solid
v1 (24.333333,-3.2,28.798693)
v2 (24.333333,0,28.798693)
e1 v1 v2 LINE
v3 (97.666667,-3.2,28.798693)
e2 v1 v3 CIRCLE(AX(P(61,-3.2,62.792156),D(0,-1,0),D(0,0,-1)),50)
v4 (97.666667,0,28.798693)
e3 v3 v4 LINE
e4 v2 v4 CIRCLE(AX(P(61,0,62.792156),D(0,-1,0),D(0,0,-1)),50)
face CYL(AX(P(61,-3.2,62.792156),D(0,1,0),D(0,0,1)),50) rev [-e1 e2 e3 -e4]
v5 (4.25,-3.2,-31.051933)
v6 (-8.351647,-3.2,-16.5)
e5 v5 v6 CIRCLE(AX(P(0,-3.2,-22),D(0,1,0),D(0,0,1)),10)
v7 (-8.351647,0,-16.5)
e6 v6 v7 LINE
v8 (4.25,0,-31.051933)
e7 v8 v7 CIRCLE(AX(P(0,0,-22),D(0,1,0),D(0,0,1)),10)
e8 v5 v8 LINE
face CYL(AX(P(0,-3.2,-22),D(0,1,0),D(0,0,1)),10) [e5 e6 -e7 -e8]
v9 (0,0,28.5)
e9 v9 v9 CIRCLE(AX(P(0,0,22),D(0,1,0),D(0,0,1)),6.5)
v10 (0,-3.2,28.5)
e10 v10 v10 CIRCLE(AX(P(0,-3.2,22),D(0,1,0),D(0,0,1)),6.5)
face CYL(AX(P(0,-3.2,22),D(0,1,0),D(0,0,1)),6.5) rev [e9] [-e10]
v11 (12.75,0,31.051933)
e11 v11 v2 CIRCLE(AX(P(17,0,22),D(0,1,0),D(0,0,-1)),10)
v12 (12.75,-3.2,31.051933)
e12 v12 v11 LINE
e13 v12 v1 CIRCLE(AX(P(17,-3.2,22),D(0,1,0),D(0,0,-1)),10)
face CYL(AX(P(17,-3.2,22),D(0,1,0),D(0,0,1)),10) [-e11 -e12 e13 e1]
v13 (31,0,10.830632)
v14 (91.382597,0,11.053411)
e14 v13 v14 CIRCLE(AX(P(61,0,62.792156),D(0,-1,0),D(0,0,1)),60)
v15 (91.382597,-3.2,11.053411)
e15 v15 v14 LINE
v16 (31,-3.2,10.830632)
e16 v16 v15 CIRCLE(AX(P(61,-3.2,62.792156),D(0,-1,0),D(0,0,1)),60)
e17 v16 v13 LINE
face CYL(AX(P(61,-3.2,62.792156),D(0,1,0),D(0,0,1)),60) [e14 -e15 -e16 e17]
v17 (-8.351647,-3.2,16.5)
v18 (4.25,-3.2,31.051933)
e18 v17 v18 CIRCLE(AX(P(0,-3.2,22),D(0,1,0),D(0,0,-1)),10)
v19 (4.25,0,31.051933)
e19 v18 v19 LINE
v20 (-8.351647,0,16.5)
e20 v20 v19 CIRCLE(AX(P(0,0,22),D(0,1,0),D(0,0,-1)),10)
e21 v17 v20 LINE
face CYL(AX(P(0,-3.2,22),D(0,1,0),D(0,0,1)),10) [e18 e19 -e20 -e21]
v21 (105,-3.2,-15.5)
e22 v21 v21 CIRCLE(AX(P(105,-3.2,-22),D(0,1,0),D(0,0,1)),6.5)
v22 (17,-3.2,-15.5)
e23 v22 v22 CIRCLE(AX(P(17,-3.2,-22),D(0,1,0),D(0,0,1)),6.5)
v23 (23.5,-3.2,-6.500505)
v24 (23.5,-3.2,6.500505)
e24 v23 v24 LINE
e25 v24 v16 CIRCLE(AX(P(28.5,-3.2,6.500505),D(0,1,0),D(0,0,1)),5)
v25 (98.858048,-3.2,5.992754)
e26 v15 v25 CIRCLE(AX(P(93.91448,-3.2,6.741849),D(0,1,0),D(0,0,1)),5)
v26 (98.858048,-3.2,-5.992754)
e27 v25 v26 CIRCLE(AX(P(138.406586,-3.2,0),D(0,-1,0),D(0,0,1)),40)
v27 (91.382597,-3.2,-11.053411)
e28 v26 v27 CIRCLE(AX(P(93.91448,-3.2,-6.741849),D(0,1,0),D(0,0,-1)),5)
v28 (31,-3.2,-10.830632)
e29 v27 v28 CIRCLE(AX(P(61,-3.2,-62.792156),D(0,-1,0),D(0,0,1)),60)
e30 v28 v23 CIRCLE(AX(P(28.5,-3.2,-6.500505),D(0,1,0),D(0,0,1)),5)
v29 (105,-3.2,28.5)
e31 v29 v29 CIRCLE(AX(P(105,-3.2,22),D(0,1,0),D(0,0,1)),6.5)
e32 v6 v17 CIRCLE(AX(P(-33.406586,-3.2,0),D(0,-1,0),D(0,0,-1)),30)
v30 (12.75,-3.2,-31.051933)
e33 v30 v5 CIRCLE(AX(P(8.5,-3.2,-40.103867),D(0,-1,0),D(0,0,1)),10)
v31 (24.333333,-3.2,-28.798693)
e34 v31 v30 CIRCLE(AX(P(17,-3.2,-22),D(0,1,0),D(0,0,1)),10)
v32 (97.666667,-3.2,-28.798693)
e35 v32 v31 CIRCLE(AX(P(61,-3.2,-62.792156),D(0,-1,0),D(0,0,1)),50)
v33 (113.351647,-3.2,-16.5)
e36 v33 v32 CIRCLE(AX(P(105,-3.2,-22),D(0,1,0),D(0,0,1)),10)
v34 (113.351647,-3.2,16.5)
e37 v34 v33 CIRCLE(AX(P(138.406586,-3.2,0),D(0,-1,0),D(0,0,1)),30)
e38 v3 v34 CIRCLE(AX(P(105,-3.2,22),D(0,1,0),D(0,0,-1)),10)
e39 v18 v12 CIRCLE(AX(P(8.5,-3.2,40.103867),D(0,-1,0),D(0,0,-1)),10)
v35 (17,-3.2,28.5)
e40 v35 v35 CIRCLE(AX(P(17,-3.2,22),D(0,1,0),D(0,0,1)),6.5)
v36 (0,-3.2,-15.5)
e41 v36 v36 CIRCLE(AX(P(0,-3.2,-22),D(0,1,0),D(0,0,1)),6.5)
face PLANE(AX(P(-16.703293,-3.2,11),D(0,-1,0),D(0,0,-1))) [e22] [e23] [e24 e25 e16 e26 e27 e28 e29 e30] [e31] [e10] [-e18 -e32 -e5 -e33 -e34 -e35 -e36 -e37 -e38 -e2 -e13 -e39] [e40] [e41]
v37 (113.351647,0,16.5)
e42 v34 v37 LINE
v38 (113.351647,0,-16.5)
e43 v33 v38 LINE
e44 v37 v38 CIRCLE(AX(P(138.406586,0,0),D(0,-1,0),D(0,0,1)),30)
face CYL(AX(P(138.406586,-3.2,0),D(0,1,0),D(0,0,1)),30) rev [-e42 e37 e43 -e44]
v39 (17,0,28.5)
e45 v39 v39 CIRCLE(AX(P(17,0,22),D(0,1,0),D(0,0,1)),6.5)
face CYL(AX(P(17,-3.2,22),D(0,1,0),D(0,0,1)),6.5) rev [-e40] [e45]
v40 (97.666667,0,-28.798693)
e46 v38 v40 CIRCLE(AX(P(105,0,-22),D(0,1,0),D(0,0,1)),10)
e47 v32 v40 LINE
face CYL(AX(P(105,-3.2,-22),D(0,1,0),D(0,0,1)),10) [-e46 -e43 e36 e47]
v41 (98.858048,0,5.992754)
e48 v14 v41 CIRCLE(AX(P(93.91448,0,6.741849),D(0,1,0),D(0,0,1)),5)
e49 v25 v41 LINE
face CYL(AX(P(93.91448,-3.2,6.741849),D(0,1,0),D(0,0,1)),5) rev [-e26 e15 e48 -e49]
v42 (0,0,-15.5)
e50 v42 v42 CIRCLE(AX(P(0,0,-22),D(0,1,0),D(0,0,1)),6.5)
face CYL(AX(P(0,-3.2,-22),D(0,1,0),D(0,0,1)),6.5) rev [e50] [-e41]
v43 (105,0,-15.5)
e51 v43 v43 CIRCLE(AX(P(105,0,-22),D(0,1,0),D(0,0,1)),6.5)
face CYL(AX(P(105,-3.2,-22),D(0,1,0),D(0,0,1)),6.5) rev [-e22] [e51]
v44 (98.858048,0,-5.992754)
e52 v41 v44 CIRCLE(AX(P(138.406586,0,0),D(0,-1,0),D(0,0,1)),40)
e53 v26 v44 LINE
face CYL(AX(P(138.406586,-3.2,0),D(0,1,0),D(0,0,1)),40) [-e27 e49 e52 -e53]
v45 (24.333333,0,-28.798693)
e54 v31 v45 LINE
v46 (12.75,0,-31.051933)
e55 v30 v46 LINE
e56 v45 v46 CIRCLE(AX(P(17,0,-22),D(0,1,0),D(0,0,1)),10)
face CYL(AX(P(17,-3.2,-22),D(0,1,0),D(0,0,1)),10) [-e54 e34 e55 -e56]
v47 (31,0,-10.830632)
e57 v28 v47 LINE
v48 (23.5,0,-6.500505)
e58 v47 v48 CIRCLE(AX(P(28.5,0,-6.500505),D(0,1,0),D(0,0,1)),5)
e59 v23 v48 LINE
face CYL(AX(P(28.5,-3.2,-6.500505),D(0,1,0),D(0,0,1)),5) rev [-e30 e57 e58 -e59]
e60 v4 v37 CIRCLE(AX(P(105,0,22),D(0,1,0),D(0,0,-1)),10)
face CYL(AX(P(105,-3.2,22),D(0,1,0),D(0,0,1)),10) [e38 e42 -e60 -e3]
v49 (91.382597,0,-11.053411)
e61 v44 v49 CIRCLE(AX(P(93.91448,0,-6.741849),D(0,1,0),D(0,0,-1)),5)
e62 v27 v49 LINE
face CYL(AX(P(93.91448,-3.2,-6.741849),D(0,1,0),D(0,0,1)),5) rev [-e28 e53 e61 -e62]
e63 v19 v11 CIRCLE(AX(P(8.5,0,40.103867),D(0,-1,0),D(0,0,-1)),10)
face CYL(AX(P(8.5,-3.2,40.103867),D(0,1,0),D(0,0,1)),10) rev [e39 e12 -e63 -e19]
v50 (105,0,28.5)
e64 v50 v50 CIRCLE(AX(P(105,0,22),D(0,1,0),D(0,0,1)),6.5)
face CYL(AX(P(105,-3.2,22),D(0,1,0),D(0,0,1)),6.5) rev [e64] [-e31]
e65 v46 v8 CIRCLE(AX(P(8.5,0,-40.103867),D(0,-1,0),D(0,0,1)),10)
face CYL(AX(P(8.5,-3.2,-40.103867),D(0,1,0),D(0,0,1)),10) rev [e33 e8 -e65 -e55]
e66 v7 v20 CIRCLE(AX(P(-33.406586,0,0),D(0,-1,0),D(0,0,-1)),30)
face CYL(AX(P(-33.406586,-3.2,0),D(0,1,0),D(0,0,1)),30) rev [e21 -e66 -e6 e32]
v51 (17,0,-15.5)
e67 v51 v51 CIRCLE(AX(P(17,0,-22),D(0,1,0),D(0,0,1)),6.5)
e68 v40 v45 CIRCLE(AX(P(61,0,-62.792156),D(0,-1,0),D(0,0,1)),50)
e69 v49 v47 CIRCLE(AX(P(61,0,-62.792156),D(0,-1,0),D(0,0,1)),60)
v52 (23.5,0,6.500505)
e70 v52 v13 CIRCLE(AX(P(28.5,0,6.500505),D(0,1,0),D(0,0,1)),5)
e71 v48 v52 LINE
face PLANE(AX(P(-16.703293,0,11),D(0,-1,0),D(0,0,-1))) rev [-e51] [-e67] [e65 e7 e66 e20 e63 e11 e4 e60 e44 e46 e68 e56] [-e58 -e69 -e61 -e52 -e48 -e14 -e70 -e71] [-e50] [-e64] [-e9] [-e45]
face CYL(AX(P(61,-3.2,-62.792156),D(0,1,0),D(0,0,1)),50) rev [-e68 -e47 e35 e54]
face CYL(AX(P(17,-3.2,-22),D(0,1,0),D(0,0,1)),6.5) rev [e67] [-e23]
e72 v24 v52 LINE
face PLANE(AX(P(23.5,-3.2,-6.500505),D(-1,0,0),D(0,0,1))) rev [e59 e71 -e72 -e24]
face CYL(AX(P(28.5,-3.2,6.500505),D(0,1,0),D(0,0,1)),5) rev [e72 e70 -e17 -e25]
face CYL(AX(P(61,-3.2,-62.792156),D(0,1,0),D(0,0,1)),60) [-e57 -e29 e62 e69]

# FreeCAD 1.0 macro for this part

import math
import FreeCAD as App
import Part
import Sketcher

doc = App.newDocument("Part")
body = doc.addObject("PartDesign::Body", "Body")

# Sketch on XZ plane
sketch1 = body.newObject("Sketcher::SketchObject", "Sketch")
sketch1.AttachmentSupport = (doc.getObject("XZ_Plane"), [""])
sketch1.MapMode = "FlatFace"
sketch1.addGeometry([
    Part.ArcOfCircle(Part.Circle(App.Vector(0, -22, 0), App.Vector(0, 0, 1), 10), math.radians(147), math.radians(295)),  # 0
    Part.ArcOfCircle(Part.Circle(App.Vector(-33, 0, 0), App.Vector(0, 0, 1), 30), math.radians(-33), math.radians(33)),  # 1
    Part.ArcOfCircle(Part.Circle(App.Vector(0, 22, 0), App.Vector(0, 0, 1), 10), math.radians(65), math.radians(213)),  # 2
    Part.ArcOfCircle(Part.Circle(App.Vector(8, 40, 0), App.Vector(0, 0, 1), 10), math.radians(-115), math.radians(-65)),  # 3
    Part.ArcOfCircle(Part.Circle(App.Vector(17, 22, 0), App.Vector(0, 0, 1), 10), math.radians(43), math.radians(115)),  # 4
    Part.ArcOfCircle(Part.Circle(App.Vector(61, 63, 0), App.Vector(0, 0, 1), 50), math.radians(-137), math.radians(-43)),  # 5
    Part.ArcOfCircle(Part.Circle(App.Vector(105, 22, 0), App.Vector(0, 0, 1), 10), math.radians(-33), math.radians(137)),  # 6
    Part.ArcOfCircle(Part.Circle(App.Vector(138, 0, 0), App.Vector(0, 0, 1), 30), math.radians(147), math.radians(213)),  # 7
    Part.ArcOfCircle(Part.Circle(App.Vector(105, -22, 0), App.Vector(0, 0, 1), 10), math.radians(-137), math.radians(33)),  # 8
    Part.ArcOfCircle(Part.Circle(App.Vector(61, -63, 0), App.Vector(0, 0, 1), 50), math.radians(43), math.radians(137)),  # 9
    Part.ArcOfCircle(Part.Circle(App.Vector(17, -22, 0), App.Vector(0, 0, 1), 10), math.radians(-115), math.radians(-43)),  # 10
    Part.ArcOfCircle(Part.Circle(App.Vector(8, -40, 0), App.Vector(0, 0, 1), 10), math.radians(65), math.radians(115)),  # 11
], False)
sketch1.addConstraint([
    Sketcher.Constraint("Tangent", 0, 1, 1, 1),
    Sketcher.Constraint("Tangent", 1, 2, 2, 2),
    Sketcher.Constraint("Tangent", 2, 1, 3, 1),
    Sketcher.Constraint("Tangent", 3, 2, 4, 2),
    Sketcher.Constraint("Tangent", 4, 1, 5, 1),
    Sketcher.Constraint("Tangent", 5, 2, 6, 2),
    Sketcher.Constraint("Tangent", 6, 1, 7, 1),
    Sketcher.Constraint("Tangent", 7, 2, 8, 2),
    Sketcher.Constraint("Tangent", 8, 1, 9, 1),
    Sketcher.Constraint("Tangent", 9, 2, 10, 2),
    Sketcher.Constraint("Tangent", 10, 1, 11, 1),
    Sketcher.Constraint("Tangent", 11, 2, 0, 2),
    Sketcher.Constraint("Equal", 0, 2),
    Sketcher.Constraint("Equal", 2, 3),
    Sketcher.Constraint("Equal", 3, 4),
    Sketcher.Constraint("Equal", 4, 6),
    Sketcher.Constraint("Equal", 1, 7),
    Sketcher.Constraint("Equal", 6, 8),
    Sketcher.Constraint("Equal", 5, 9),
    Sketcher.Constraint("Equal", 8, 10),
    Sketcher.Constraint("Equal", 10, 11),
    Sketcher.Constraint("Symmetric", 0, 3, 2, 3, -1, 1),
    Sketcher.Constraint("Symmetric", 6, 3, 8, 3, -1),
    Sketcher.Constraint("Symmetric", 4, 3, 10, 3, -1),
    Sketcher.Constraint("PointOnObject", 0, 3, -2),
    Sketcher.Constraint("Horizontal", 2, 3, 4, 3),
    Sketcher.Constraint("Horizontal", 4, 3, 6, 3),
    Sketcher.Constraint("Radius", 0, 10.0),
    Sketcher.Constraint("Radius", 1, 30.0),
    Sketcher.Constraint("Radius", 5, 50.0),
    Sketcher.Constraint("DistanceY", 0, 3, -1, 1, 22.0),
    Sketcher.Constraint("DistanceX", -1, 1, 4, 3, 17.0),
    Sketcher.Constraint("DistanceX", -1, 1, 5, 3, 61.0),
])
pad1 = body.newObject("PartDesign::Pad", "Pad")
pad1.Profile = sketch1
pad1.Length = 3.2

# Sketch on XZ plane
sketch2 = body.newObject("Sketcher::SketchObject", "Sketch001")
sketch2.AttachmentSupport = (doc.getObject("XZ_Plane"), [""])
sketch2.MapMode = "FlatFace"
sketch2.addGeometry([
    Part.Circle(App.Vector(0, -22, 0), App.Vector(0, 0, 1), 6),  # 0
    Part.Circle(App.Vector(17, -22, 0), App.Vector(0, 0, 1), 6),  # 1
    Part.Circle(App.Vector(105, -22, 0), App.Vector(0, 0, 1), 6),  # 2
    Part.Circle(App.Vector(105, 22, 0), App.Vector(0, 0, 1), 6),  # 3
    Part.Circle(App.Vector(17, 22, 0), App.Vector(0, 0, 1), 6),  # 4
    Part.Circle(App.Vector(0, 22, 0), App.Vector(0, 0, 1), 6),  # 5
], False)
sketch2.addConstraint([
    Sketcher.Constraint("Equal", 0, 1),
    Sketcher.Constraint("Equal", 1, 2),
    Sketcher.Constraint("Equal", 2, 3),
    Sketcher.Constraint("Equal", 3, 4),
    Sketcher.Constraint("Equal", 4, 5),
    Sketcher.Constraint("Symmetric", 0, 3, 5, 3, -1, 1),
    Sketcher.Constraint("Symmetric", 2, 3, 3, 3, -1),
    Sketcher.Constraint("Symmetric", 1, 3, 4, 3, -1),
    Sketcher.Constraint("PointOnObject", 0, 3, -2),
    Sketcher.Constraint("Horizontal", 0, 3, 1, 3),
    Sketcher.Constraint("Horizontal", 1, 3, 2, 3),
    Sketcher.Constraint("Diameter", 0, 13.0),
    Sketcher.Constraint("DistanceY", 0, 3, -1, 1, 22.0),
    Sketcher.Constraint("DistanceX", -1, 1, 1, 3, 17.0),
    Sketcher.Constraint("DistanceX", -1, 1, 2, 3, 105.0),
])
pocket1 = body.newObject("PartDesign::Pocket", "Pocket")
pocket1.Profile = sketch2
pocket1.Type = "ThroughAll"
pocket1.Reversed = True

# Sketch on XZ plane
sketch3 = body.newObject("Sketcher::SketchObject", "Sketch002")
sketch3.AttachmentSupport = (doc.getObject("XZ_Plane"), [""])
sketch3.MapMode = "FlatFace"
sketch3.addGeometry([
    Part.LineSegment(App.Vector(24, -7, 0), App.Vector(24, 7, 0)),  # 0
    Part.ArcOfCircle(Part.Circle(App.Vector(28, 7, 0), App.Vector(0, 0, 1), 5), math.radians(60), math.radians(180)),  # 1
    Part.ArcOfCircle(Part.Circle(App.Vector(61, 63, 0), App.Vector(0, 0, 1), 60), math.radians(-120), math.radians(-60)),  # 2
    Part.ArcOfCircle(Part.Circle(App.Vector(94, 7, 0), App.Vector(0, 0, 1), 5), math.radians(-9), math.radians(120)),  # 3
    Part.ArcOfCircle(Part.Circle(App.Vector(138, 0, 0), App.Vector(0, 0, 1), 40), math.radians(171.38), math.radians(188.62)),  # 4
    Part.ArcOfCircle(Part.Circle(App.Vector(94, -7, 0), App.Vector(0, 0, 1), 5), math.radians(-120), math.radians(9)),  # 5
    Part.ArcOfCircle(Part.Circle(App.Vector(61, -63, 0), App.Vector(0, 0, 1), 60), math.radians(60), math.radians(120)),  # 6
    Part.ArcOfCircle(Part.Circle(App.Vector(28, -7, 0), App.Vector(0, 0, 1), 5), math.radians(180), math.radians(300)),  # 7
], False)
sketch3.addConstraint([
    Sketcher.Constraint("Tangent", 0, 2, 1, 2),
    Sketcher.Constraint("Tangent", 1, 1, 2, 1),
    Sketcher.Constraint("Tangent", 2, 2, 3, 2),
    Sketcher.Constraint("Tangent", 3, 1, 4, 1),
    Sketcher.Constraint("Tangent", 4, 2, 5, 2),
    Sketcher.Constraint("Tangent", 5, 1, 6, 1),
    Sketcher.Constraint("Tangent", 6, 2, 7, 2),
    Sketcher.Constraint("Tangent", 7, 1, 0, 1),
    Sketcher.Constraint("Vertical", 0),
    Sketcher.Constraint("Equal", 1, 3),
    Sketcher.Constraint("Equal", 3, 5),
    Sketcher.Constraint("Equal", 2, 6),
    Sketcher.Constraint("Equal", 5, 7),
    Sketcher.Constraint("Symmetric", 3, 3, 5, 3, -1),
    Sketcher.Constraint("Vertical", 2, 3, 6, 3),
    Sketcher.Constraint("Radius", 1, 5.0),
    Sketcher.Constraint("Radius", 2, 60.0),
    Sketcher.Constraint("Radius", 4, 40.0),
    Sketcher.Constraint("DistanceX", -1, 1, 2, 3, 61.0),
    Sketcher.Constraint("DistanceX", -1, 1, 1, 1, 31.0),
    Sketcher.Constraint("DistanceY", 0, 1, 0, 2, 13.00101),
    Sketcher.Constraint("DistanceX", -1, 1, 3, 3, 93.91448),
])
pocket2 = body.newObject("PartDesign::Pocket", "Pocket001")
pocket2.Profile = sketch3
pocket2.Type = "ThroughAll"
pocket2.Reversed = True

doc.recompute()
